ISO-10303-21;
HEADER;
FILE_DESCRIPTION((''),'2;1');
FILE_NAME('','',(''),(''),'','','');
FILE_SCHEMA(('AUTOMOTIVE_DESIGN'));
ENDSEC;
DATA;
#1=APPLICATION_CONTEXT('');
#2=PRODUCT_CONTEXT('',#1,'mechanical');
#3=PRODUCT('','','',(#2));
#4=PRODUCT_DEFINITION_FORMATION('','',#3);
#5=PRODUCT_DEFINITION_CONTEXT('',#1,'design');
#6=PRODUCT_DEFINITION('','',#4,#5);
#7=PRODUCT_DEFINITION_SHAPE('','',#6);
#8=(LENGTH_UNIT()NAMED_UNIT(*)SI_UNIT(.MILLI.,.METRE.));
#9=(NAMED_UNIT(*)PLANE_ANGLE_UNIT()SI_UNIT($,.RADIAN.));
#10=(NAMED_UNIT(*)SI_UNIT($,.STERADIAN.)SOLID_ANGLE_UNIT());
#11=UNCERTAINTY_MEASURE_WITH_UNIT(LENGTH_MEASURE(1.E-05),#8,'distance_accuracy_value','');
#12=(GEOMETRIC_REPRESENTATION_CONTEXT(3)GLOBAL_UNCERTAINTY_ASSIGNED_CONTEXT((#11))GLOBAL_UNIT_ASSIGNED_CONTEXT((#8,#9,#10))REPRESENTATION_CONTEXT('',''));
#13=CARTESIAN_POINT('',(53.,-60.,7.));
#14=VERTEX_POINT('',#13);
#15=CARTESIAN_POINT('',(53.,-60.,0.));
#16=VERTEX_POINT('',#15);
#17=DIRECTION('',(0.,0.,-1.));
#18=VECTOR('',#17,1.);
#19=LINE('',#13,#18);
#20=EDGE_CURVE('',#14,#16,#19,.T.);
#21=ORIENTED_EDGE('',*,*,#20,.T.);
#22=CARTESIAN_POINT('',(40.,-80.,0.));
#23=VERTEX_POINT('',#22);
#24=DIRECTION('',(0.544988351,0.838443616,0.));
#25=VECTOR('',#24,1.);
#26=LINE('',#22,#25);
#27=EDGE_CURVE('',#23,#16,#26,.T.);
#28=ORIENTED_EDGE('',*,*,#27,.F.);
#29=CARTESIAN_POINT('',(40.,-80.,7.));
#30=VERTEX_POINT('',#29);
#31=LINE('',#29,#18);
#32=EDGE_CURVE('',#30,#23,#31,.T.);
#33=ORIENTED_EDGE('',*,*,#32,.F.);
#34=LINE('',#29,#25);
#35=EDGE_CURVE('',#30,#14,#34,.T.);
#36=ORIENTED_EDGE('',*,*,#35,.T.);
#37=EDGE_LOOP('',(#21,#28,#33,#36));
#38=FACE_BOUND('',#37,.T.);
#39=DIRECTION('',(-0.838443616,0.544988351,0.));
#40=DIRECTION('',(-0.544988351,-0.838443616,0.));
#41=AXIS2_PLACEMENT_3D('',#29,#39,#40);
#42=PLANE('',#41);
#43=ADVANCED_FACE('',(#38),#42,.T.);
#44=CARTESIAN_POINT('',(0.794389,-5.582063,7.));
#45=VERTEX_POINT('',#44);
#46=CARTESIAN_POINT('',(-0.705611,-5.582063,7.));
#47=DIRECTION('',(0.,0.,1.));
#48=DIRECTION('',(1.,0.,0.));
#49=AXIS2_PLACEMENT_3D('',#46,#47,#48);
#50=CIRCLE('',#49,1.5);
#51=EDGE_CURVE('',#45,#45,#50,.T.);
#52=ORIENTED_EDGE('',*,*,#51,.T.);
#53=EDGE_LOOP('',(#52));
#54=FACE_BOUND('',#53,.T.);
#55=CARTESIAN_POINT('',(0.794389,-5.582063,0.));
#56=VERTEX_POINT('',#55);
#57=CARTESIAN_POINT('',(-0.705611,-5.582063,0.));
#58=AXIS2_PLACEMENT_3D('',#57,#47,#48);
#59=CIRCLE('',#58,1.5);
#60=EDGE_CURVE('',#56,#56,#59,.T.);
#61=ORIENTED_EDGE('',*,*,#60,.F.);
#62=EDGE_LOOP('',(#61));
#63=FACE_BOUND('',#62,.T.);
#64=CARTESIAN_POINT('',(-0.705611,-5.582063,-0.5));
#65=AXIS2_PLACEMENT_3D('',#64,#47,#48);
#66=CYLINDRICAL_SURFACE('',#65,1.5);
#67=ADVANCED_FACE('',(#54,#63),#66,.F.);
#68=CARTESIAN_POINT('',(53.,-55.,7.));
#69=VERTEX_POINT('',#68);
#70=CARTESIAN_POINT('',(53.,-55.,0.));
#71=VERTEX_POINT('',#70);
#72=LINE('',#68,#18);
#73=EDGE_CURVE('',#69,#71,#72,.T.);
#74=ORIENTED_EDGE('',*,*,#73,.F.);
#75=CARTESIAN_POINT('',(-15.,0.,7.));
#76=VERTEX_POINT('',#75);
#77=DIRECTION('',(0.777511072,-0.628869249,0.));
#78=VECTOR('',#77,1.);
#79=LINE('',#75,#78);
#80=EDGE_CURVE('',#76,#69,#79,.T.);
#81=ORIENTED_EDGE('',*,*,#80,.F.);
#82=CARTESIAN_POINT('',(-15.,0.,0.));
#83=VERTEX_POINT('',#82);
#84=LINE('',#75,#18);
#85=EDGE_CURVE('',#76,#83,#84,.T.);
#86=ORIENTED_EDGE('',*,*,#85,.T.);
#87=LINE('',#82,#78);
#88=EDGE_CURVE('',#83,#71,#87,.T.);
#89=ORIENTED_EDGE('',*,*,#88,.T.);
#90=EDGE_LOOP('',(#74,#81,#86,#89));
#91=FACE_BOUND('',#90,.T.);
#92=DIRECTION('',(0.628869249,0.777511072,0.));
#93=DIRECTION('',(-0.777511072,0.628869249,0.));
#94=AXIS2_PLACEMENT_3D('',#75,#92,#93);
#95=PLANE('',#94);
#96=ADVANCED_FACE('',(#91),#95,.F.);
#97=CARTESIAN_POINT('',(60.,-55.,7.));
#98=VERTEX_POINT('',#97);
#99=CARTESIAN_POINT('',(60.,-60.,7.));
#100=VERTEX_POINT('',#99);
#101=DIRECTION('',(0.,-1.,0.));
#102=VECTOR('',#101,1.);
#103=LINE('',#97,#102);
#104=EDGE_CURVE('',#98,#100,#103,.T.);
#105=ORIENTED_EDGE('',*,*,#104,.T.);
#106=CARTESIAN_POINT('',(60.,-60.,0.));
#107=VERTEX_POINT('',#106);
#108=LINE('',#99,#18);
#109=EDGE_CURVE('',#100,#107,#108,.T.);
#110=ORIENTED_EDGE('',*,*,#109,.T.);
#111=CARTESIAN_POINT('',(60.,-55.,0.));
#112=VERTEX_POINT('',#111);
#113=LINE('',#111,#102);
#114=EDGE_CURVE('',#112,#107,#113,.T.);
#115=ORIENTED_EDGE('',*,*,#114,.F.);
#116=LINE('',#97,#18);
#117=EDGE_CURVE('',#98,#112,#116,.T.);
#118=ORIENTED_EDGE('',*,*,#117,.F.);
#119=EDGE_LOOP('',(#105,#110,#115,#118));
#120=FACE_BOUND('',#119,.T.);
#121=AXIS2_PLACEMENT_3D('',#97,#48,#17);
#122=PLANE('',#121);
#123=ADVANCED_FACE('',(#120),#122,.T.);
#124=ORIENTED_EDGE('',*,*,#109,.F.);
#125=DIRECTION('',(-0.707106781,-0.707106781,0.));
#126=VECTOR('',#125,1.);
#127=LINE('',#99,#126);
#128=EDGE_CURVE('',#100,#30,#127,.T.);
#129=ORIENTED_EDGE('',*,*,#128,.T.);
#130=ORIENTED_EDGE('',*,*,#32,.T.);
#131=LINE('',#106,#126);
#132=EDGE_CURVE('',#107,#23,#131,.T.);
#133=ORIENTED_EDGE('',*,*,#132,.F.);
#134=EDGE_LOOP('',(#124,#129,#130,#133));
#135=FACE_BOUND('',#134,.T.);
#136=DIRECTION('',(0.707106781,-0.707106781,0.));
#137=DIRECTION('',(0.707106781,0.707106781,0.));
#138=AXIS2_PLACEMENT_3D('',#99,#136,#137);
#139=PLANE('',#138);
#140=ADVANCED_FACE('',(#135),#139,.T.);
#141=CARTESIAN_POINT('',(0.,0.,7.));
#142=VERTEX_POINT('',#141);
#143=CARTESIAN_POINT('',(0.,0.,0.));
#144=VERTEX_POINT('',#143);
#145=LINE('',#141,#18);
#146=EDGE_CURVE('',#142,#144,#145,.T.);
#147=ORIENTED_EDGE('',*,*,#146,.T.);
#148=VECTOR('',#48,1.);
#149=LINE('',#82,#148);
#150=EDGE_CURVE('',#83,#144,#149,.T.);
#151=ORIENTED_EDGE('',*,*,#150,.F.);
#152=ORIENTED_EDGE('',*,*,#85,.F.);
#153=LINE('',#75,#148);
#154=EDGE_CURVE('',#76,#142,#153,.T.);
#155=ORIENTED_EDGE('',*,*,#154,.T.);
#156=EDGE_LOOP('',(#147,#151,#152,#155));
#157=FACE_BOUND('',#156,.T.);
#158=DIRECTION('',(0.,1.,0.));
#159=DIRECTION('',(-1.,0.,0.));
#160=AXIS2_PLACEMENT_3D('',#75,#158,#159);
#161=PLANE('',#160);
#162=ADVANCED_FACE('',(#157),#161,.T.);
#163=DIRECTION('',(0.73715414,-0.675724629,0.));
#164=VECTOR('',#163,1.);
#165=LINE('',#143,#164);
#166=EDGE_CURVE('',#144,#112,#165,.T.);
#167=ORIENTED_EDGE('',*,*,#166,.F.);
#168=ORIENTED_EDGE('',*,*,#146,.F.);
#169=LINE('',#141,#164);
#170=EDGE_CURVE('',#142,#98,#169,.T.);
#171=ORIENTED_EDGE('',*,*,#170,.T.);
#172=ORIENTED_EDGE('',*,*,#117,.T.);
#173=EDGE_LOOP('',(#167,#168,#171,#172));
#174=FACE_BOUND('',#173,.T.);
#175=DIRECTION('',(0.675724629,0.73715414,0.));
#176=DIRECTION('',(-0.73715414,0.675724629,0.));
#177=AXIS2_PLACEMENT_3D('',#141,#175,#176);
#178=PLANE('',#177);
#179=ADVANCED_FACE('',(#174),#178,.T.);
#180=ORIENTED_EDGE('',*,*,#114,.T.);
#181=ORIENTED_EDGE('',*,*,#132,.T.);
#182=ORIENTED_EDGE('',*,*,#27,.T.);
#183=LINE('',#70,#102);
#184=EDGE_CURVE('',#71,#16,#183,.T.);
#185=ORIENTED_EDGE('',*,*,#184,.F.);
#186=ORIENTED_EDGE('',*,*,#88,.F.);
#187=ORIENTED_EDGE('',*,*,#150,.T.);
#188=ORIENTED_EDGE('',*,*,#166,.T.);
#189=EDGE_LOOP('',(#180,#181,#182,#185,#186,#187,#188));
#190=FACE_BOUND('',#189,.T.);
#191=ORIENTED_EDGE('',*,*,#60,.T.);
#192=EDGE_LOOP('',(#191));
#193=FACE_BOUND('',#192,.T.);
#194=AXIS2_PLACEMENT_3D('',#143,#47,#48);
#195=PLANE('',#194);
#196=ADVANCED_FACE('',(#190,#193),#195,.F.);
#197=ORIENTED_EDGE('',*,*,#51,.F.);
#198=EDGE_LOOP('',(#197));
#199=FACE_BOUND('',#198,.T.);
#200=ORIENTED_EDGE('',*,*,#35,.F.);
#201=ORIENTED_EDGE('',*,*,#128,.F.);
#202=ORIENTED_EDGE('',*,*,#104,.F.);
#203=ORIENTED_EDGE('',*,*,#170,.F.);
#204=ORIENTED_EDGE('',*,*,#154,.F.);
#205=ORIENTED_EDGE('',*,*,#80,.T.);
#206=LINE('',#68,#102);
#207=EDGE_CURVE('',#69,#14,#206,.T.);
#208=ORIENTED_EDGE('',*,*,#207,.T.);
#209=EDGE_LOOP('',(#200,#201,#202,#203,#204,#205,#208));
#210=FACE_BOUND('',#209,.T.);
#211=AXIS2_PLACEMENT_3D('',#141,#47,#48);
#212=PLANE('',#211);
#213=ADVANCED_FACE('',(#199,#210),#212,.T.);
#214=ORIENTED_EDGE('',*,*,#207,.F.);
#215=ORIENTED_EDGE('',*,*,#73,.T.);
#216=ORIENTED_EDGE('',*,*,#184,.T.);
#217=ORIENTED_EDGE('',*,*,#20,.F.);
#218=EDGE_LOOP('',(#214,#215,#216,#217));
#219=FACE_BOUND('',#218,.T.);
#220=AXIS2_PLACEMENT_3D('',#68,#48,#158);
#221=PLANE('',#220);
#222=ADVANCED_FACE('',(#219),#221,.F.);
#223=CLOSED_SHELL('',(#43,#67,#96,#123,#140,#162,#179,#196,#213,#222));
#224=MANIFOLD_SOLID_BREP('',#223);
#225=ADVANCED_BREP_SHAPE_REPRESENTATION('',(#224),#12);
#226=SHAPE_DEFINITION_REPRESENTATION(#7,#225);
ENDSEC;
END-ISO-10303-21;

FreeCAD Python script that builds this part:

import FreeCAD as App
import Part
import Sketcher

V = App.Vector
Q = App.Units.Quantity


def add_polygon(sketch, points):
    """Adds a closed chain of lines whose ends are joined by coincident constraints."""
    first, n = sketch.GeometryCount, len(points)
    for a, b in zip(points, points[1:] + points[:1]):
        sketch.addGeometry(Part.LineSegment(App.Vector(*a, 0), App.Vector(*b, 0)), False)
    for i in range(n):
        sketch.addConstraint(Sketcher.Constraint("Coincident", first + i, 2, first + (i + 1) % n, 1))

doc = App.newDocument("Part")
body = doc.addObject("PartDesign::Body", "Body")

# Sketch on XY plane
sketch1 = doc.addObject("Sketcher::SketchObject", "Sketch")
body.addObject(sketch1)
sketch1.AttachmentSupport = (doc.XY_Plane, [""])
sketch1.MapMode = "FlatFace"
add_polygon(sketch1, [(60, -55), (0, 0), (-15, 0), (53, -55), (53, -60), (40, -80), (60, -60)])  # lines 0-6
sketch1.addConstraint([
    Sketcher.Constraint("Horizontal", 1),
    Sketcher.Constraint("Vertical", 3),
    Sketcher.Constraint("Vertical", 6),
    Sketcher.Constraint("Coincident", 0, 2, -1, 1),
    Sketcher.Constraint("Horizontal", 3, 2, 5, 2),
    Sketcher.Constraint("Horizontal", 2, 2, 6, 2),
    Sketcher.Constraint("DistanceX", 1, 2, 1, 1, Q("15 mm")),
    Sketcher.Constraint("DistanceY", 3, 2, 3, 1, Q("5 mm")),
    Sketcher.Constraint("Angle", 5, Q("45 deg")),
    Sketcher.Constraint("DistanceX", -1, 1, 2, 2, Q("53 mm")),
    Sketcher.Constraint("DistanceY", 2, 2, -1, 1, Q("55 mm")),
    Sketcher.Constraint("DistanceX", -1, 1, 4, 2, Q("40 mm")),
    Sketcher.Constraint("DistanceY", 4, 2, -1, 1, Q("80 mm")),
])
pad1 = doc.addObject("PartDesign::Pad", "Pad")
body.addObject(pad1)
pad1.Profile = sketch1
pad1.Length = 7

# Sketch on XY plane
sketch2 = doc.addObject("Sketcher::SketchObject", "Sketch001")
body.addObject(sketch2)
sketch2.AttachmentSupport = (doc.XY_Plane, [""])
sketch2.MapMode = "FlatFace"
sketch2.AttachmentOffset = App.Placement(V(0, 0, 7), App.Rotation())
sketch2.addGeometry(Part.Circle(V(-0.7, -5.6, 0), V(0, 0, 1), 1.5), False)
sketch2.addConstraint([
    Sketcher.Constraint("Diameter", 0, Q("3 mm")),
    Sketcher.Constraint("DistanceX", 0, 3, -1, 1, Q("0.705611 mm")),
    Sketcher.Constraint("DistanceY", 0, 3, -1, 1, Q("5.582063 mm")),
])
pocket1 = doc.addObject("PartDesign::Pocket", "Pocket")
body.addObject(pocket1)
pocket1.Profile = sketch2
pocket1.Length = 15
pocket1.Midplane = True

doc.recompute()
